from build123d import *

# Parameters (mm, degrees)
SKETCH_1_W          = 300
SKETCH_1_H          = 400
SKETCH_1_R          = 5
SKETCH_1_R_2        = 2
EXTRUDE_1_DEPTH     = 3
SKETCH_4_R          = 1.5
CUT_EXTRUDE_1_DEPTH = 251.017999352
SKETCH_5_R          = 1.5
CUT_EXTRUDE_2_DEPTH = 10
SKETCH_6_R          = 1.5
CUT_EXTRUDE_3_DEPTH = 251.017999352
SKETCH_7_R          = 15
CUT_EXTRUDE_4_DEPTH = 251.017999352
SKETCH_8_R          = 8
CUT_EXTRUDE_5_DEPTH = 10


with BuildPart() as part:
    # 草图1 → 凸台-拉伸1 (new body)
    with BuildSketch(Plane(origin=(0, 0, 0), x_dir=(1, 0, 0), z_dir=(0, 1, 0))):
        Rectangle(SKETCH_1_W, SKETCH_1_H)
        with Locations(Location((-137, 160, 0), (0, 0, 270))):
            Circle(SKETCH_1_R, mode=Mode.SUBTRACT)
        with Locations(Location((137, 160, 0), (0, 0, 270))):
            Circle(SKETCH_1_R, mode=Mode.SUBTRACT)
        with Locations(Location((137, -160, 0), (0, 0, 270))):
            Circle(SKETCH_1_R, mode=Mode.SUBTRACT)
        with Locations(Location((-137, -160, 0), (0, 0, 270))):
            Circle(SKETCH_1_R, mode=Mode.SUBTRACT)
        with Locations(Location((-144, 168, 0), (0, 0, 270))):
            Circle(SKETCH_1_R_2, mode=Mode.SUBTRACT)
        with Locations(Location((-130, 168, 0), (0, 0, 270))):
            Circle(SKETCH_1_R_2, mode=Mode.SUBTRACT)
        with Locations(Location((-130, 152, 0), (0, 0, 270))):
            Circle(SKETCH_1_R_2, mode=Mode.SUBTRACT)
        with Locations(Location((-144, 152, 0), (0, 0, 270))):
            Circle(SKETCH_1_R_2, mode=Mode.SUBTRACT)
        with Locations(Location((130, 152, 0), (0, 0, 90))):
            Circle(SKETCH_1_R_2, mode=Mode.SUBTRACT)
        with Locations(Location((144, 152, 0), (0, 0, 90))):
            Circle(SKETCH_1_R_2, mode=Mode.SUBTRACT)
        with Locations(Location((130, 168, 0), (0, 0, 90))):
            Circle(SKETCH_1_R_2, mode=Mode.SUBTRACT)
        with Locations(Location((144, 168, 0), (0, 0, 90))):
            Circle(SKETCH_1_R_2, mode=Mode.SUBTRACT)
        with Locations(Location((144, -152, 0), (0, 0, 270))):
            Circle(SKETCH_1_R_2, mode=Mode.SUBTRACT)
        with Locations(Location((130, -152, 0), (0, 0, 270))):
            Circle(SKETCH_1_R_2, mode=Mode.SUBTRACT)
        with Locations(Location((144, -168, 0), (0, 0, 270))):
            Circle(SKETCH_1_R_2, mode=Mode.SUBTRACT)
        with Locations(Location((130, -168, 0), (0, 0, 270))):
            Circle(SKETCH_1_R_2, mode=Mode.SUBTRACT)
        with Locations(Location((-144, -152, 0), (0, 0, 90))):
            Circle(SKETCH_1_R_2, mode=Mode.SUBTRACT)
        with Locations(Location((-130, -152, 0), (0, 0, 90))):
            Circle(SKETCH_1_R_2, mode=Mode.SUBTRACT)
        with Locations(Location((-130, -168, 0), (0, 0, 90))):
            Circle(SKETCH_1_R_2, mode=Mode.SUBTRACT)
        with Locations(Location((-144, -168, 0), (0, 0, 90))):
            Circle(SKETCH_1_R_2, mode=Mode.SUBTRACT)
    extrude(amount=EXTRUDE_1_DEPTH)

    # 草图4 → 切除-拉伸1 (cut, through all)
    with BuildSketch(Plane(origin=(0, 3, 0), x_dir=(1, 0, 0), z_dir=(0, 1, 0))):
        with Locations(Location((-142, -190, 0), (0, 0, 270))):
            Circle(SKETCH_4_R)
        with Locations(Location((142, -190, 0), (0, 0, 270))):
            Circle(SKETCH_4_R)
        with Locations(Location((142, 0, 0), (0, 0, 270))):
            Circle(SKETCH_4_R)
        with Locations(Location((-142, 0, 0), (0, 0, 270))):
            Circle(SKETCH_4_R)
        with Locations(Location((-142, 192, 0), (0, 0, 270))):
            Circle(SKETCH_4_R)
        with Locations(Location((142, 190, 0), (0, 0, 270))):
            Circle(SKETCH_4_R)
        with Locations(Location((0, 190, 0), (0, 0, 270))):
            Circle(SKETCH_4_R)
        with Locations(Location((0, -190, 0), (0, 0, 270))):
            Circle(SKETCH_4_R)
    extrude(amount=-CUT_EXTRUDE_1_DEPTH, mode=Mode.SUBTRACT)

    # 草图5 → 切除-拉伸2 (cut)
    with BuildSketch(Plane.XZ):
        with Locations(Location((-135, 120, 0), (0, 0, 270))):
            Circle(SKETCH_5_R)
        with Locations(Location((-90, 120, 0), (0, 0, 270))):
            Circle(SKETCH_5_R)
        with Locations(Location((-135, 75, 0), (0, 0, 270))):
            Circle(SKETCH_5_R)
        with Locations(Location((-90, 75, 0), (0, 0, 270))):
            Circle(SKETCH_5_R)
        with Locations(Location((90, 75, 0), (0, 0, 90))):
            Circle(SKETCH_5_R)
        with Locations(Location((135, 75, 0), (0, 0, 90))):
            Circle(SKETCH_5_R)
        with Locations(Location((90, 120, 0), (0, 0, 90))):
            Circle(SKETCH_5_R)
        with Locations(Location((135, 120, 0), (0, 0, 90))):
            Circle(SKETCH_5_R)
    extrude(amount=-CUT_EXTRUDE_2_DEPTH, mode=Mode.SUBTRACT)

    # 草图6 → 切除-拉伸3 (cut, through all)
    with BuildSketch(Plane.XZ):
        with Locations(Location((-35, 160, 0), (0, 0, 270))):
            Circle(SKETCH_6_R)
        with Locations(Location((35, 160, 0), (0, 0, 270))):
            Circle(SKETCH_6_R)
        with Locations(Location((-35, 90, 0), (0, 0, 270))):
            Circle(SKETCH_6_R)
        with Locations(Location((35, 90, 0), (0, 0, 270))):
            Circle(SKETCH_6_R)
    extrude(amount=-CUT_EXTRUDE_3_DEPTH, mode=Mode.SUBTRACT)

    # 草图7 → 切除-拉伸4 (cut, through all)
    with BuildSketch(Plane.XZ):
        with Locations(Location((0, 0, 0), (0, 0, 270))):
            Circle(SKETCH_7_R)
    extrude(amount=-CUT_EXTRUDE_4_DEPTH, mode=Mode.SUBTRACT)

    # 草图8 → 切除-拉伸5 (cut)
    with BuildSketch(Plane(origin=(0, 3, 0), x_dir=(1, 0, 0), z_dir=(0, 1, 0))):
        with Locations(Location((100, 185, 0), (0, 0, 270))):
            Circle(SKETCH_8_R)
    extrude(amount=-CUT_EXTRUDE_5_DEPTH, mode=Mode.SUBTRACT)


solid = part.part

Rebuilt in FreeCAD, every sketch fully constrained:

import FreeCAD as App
import Part
import Sketcher


def add_polygon(sketch, points):
    """Adds a closed chain of lines whose ends are joined by coincident constraints."""
    first, n = sketch.GeometryCount, len(points)
    for a, b in zip(points, points[1:] + points[:1]):
        sketch.addGeometry(Part.LineSegment(App.Vector(*a, 0), App.Vector(*b, 0)), False)
    for i in range(n):
        sketch.addConstraint(Sketcher.Constraint("Coincident", first + i, 2, first + (i + 1) % n, 1))

doc = App.newDocument("Part")
body = doc.addObject("PartDesign::Body", "Body")

# Sketch on XZ plane
sketch1 = body.newObject("Sketcher::SketchObject", "Sketch")
sketch1.AttachmentSupport = (doc.getObject("XZ_Plane"), [""])
sketch1.MapMode = "FlatFace"
add_polygon(sketch1, [(-150, -200), (-150, 200), (150, 200), (150, -200)])  # lines 0-3
sketch1.addGeometry(Part.Circle(App.Vector(-144, 168, 0), App.Vector(0, 0, 1), 2), False)  # 4
sketch1.addGeometry(Part.Circle(App.Vector(-137, 160, 0), App.Vector(0, 0, 1), 5), False)  # 5
sketch1.addGeometry(Part.Circle(App.Vector(-130, 168, 0), App.Vector(0, 0, 1), 2), False)  # 6
sketch1.addGeometry(Part.Circle(App.Vector(-144, 152, 0), App.Vector(0, 0, 1), 2), False)  # 7
sketch1.addGeometry(Part.Circle(App.Vector(-130, 152, 0), App.Vector(0, 0, 1), 2), False)  # 8
sketch1.addGeometry(Part.Circle(App.Vector(130, 168, 0), App.Vector(0, 0, 1), 2), False)  # 9
sketch1.addGeometry(Part.Circle(App.Vector(144, 168, 0), App.Vector(0, 0, 1), 2), False)  # 10
sketch1.addGeometry(Part.Circle(App.Vector(137, 160, 0), App.Vector(0, 0, 1), 5), False)  # 11
sketch1.addGeometry(Part.Circle(App.Vector(130, 152, 0), App.Vector(0, 0, 1), 2), False)  # 12
sketch1.addGeometry(Part.Circle(App.Vector(144, 152, 0), App.Vector(0, 0, 1), 2), False)  # 13
sketch1.addGeometry(Part.Circle(App.Vector(-144, -152, 0), App.Vector(0, 0, 1), 2), False)  # 14
sketch1.addGeometry(Part.Circle(App.Vector(-130, -152, 0), App.Vector(0, 0, 1), 2), False)  # 15
sketch1.addGeometry(Part.Circle(App.Vector(-137, -160, 0), App.Vector(0, 0, 1), 5), False)  # 16
sketch1.addGeometry(Part.Circle(App.Vector(-144, -168, 0), App.Vector(0, 0, 1), 2), False)  # 17
sketch1.addGeometry(Part.Circle(App.Vector(-130, -168, 0), App.Vector(0, 0, 1), 2), False)  # 18
sketch1.addGeometry(Part.Circle(App.Vector(130, -152, 0), App.Vector(0, 0, 1), 2), False)  # 19
sketch1.addGeometry(Part.Circle(App.Vector(144, -152, 0), App.Vector(0, 0, 1), 2), False)  # 20
sketch1.addGeometry(Part.Circle(App.Vector(130, -168, 0), App.Vector(0, 0, 1), 2), False)  # 21
sketch1.addGeometry(Part.Circle(App.Vector(137, -160, 0), App.Vector(0, 0, 1), 5), False)  # 22
sketch1.addGeometry(Part.Circle(App.Vector(144, -168, 0), App.Vector(0, 0, 1), 2), False)  # 23
sketch1.addConstraint([
    Sketcher.Constraint("Vertical", 0),
    Sketcher.Constraint("Horizontal", 1),
    Sketcher.Constraint("Vertical", 2),
    Sketcher.Constraint("Horizontal", 3),
    Sketcher.Constraint("Equal", 4, 6),
    Sketcher.Constraint("Equal", 6, 7),
    Sketcher.Constraint("Equal", 7, 8),
    Sketcher.Constraint("Equal", 8, 9),
    Sketcher.Constraint("Equal", 9, 10),
    Sketcher.Constraint("Equal", 5, 11),
    Sketcher.Constraint("Equal", 10, 12),
    Sketcher.Constraint("Equal", 12, 13),
    Sketcher.Constraint("Equal", 13, 14),
    Sketcher.Constraint("Equal", 14, 15),
    Sketcher.Constraint("Equal", 11, 16),
    Sketcher.Constraint("Equal", 15, 17),
    Sketcher.Constraint("Equal", 17, 18),
    Sketcher.Constraint("Equal", 18, 19),
    Sketcher.Constraint("Equal", 19, 20),
    Sketcher.Constraint("Equal", 20, 21),
    Sketcher.Constraint("Equal", 16, 22),
    Sketcher.Constraint("Equal", 21, 23),
    Sketcher.Constraint("Symmetric", 13, 3, 14, 3, -1, 1),
    Sketcher.Constraint("Symmetric", 12, 3, 15, 3, -1, 1),
    Sketcher.Constraint("Symmetric", 11, 3, 16, 3, -1, 1),
    Sketcher.Constraint("Symmetric", 10, 3, 17, 3, -1, 1),
    Sketcher.Constraint("Symmetric", 9, 3, 18, 3, -1, 1),
    Sketcher.Constraint("Symmetric", 8, 3, 19, 3, -1, 1),
    Sketcher.Constraint("Symmetric", 7, 3, 20, 3, -1, 1),
    Sketcher.Constraint("Symmetric", 6, 3, 21, 3, -1, 1),
    Sketcher.Constraint("Symmetric", 5, 3, 22, 3, -1, 1),
    Sketcher.Constraint("Symmetric", 4, 3, 23, 3, -1, 1),
    Sketcher.Constraint("Symmetric", 0, 2, 2, 2, -1, 1),
    Sketcher.Constraint("Symmetric", 6, 3, 9, 3, -2),
    Sketcher.Constraint("Symmetric", 4, 3, 10, 3, -2),
    Sketcher.Constraint("Symmetric", 5, 3, 11, 3, -2),
    Sketcher.Constraint("Symmetric", 8, 3, 12, 3, -2),
    Sketcher.Constraint("Symmetric", 7, 3, 13, 3, -2),
    Sketcher.Constraint("Horizontal", 4, 3, 6, 3),
    Sketcher.Constraint("Horizontal", 7, 3, 8, 3),
    Sketcher.Constraint("Vertical", 4, 3, 7, 3),
    Sketcher.Constraint("Vertical", 6, 3, 8, 3),
    Sketcher.Constraint("Diameter", 4, 4.0),
    Sketcher.Constraint("Diameter", 5, 10.0),
    Sketcher.Constraint("DistanceX", 1, 1, 1, 2, 300.0),
    Sketcher.Constraint("DistanceY", 0, 1, 0, 2, 400.0),
    Sketcher.Constraint("DistanceX", 4, 3, -1, 1, 144.0),
    Sketcher.Constraint("DistanceY", -1, 1, 4, 3, 168.0),
    Sketcher.Constraint("DistanceX", 5, 3, -1, 1, 137.0),
    Sketcher.Constraint("DistanceY", -1, 1, 5, 3, 160.0),
    Sketcher.Constraint("DistanceX", 6, 3, -1, 1, 130.0),
    Sketcher.Constraint("DistanceY", -1, 1, 7, 3, 152.0),
])
pad1 = body.newObject("PartDesign::Pad", "Pad")
pad1.Profile = sketch1
pad1.Length = 3
pad1.Reversed = True

# Sketch on XZ plane
sketch2 = body.newObject("Sketcher::SketchObject", "Sketch001")
sketch2.AttachmentSupport = (doc.getObject("XZ_Plane"), [""])
sketch2.MapMode = "FlatFace"
sketch2.AttachmentOffset = App.Placement(App.Vector(0, 0, -3), App.Rotation())
sketch2.addGeometry([
    Part.Circle(App.Vector(-142, 190, 0), App.Vector(0, 0, 1), 1.5),  # 0
    Part.Circle(App.Vector(142, 190, 0), App.Vector(0, 0, 1), 1.5),  # 1
    Part.Circle(App.Vector(142, 0, 0), App.Vector(0, 0, 1), 1.5),  # 2
    Part.Circle(App.Vector(-142, 0, 0), App.Vector(0, 0, 1), 1.5),  # 3
    Part.Circle(App.Vector(-142, -192, 0), App.Vector(0, 0, 1), 1.5),  # 4
    Part.Circle(App.Vector(142, -190, 0), App.Vector(0, 0, 1), 1.5),  # 5
    Part.Circle(App.Vector(0, -190, 0), App.Vector(0, 0, 1), 1.5),  # 6
    Part.Circle(App.Vector(0, 190, 0), App.Vector(0, 0, 1), 1.5),  # 7
], False)
sketch2.addConstraint([
    Sketcher.Constraint("Equal", 0, 1),
    Sketcher.Constraint("Equal", 1, 2),
    Sketcher.Constraint("Equal", 2, 3),
    Sketcher.Constraint("Equal", 3, 4),
    Sketcher.Constraint("Equal", 4, 5),
    Sketcher.Constraint("Equal", 5, 6),
    Sketcher.Constraint("Equal", 6, 7),
    Sketcher.Constraint("Symmetric", 2, 3, 3, 3, -1, 1),
    Sketcher.Constraint("Symmetric", 0, 3, 5, 3, -1, 1),
    Sketcher.Constraint("Symmetric", 6, 3, 7, 3, -1, 1),
    Sketcher.Constraint("Symmetric", 0, 3, 1, 3, -2),
    Sketcher.Constraint("PointOnObject", 2, 3, -1),
    Sketcher.Constraint("PointOnObject", 6, 3, -2),
    Sketcher.Constraint("Horizontal", 5, 3, 6, 3),
    Sketcher.Constraint("Vertical", 1, 3, 2, 3),
    Sketcher.Constraint("Vertical", 3, 3, 4, 3),
    Sketcher.Constraint("Diameter", 0, 3.0),
    Sketcher.Constraint("DistanceX", 0, 3, -1, 1, 142.0),
    Sketcher.Constraint("DistanceY", -1, 1, 0, 3, 190.0),
    Sketcher.Constraint("DistanceY", 4, 3, -1, 1, 192.0),
])
pocket1 = body.newObject("PartDesign::Pocket", "Pocket")
pocket1.Profile = sketch2
pocket1.Type = "ThroughAll"
pocket1.Reversed = True

# Sketch on XZ plane
sketch3 = body.newObject("Sketcher::SketchObject", "Sketch002")
sketch3.AttachmentSupport = (doc.getObject("XZ_Plane"), [""])
sketch3.MapMode = "FlatFace"
sketch3.addGeometry([
    Part.Circle(App.Vector(-135, 120, 0), App.Vector(0, 0, 1), 1.5),  # 0
    Part.Circle(App.Vector(-90, 120, 0), App.Vector(0, 0, 1), 1.5),  # 1
    Part.Circle(App.Vector(-135, 75, 0), App.Vector(0, 0, 1), 1.5),  # 2
    Part.Circle(App.Vector(-90, 75, 0), App.Vector(0, 0, 1), 1.5),  # 3
    Part.Circle(App.Vector(90, 75, 0), App.Vector(0, 0, 1), 1.5),  # 4
    Part.Circle(App.Vector(135, 75, 0), App.Vector(0, 0, 1), 1.5),  # 5
    Part.Circle(App.Vector(90, 120, 0), App.Vector(0, 0, 1), 1.5),  # 6
    Part.Circle(App.Vector(135, 120, 0), App.Vector(0, 0, 1), 1.5),  # 7
], False)
sketch3.addConstraint([
    Sketcher.Constraint("Equal", 0, 1),
    Sketcher.Constraint("Equal", 1, 2),
    Sketcher.Constraint("Equal", 2, 3),
    Sketcher.Constraint("Equal", 3, 4),
    Sketcher.Constraint("Equal", 4, 5),
    Sketcher.Constraint("Equal", 5, 6),
    Sketcher.Constraint("Equal", 6, 7),
    Sketcher.Constraint("Symmetric", 3, 3, 4, 3, -2),
    Sketcher.Constraint("Symmetric", 2, 3, 5, 3, -2),
    Sketcher.Constraint("Symmetric", 1, 3, 6, 3, -2),
    Sketcher.Constraint("Symmetric", 0, 3, 7, 3, -2),
    Sketcher.Constraint("Horizontal", 0, 3, 1, 3),
    Sketcher.Constraint("Horizontal", 2, 3, 3, 3),
    Sketcher.Constraint("Vertical", 0, 3, 2, 3),
    Sketcher.Constraint("Vertical", 1, 3, 3, 3),
    Sketcher.Constraint("Diameter", 0, 3.0),
    Sketcher.Constraint("DistanceX", 0, 3, -1, 1, 135.0),
    Sketcher.Constraint("DistanceY", -1, 1, 0, 3, 120.0),
    Sketcher.Constraint("DistanceX", 1, 3, -1, 1, 90.0),
    Sketcher.Constraint("DistanceY", -1, 1, 2, 3, 75.0),
])
pocket2 = body.newObject("PartDesign::Pocket", "Pocket001")
pocket2.Profile = sketch3
pocket2.Length = 10

# Sketch on XZ plane
sketch4 = body.newObject("Sketcher::SketchObject", "Sketch003")
sketch4.AttachmentSupport = (doc.getObject("XZ_Plane"), [""])
sketch4.MapMode = "FlatFace"
sketch4.addGeometry([
    Part.Circle(App.Vector(-35, 160, 0), App.Vector(0, 0, 1), 1.5),
    Part.Circle(App.Vector(35, 160, 0), App.Vector(0, 0, 1), 1.5),
    Part.Circle(App.Vector(-35, 90, 0), App.Vector(0, 0, 1), 1.5),
    Part.Circle(App.Vector(35, 90, 0), App.Vector(0, 0, 1), 1.5),
], False)
sketch4.addConstraint([
    Sketcher.Constraint("Equal", 0, 1),
    Sketcher.Constraint("Equal", 1, 2),
    Sketcher.Constraint("Equal", 2, 3),
    Sketcher.Constraint("Symmetric", 0, 3, 1, 3, -2),
    Sketcher.Constraint("Symmetric", 2, 3, 3, 3, -2),
    Sketcher.Constraint("Vertical", 0, 3, 2, 3),
    Sketcher.Constraint("Diameter", 0, 3.0),
    Sketcher.Constraint("DistanceX", 0, 3, -1, 1, 35.0),
    Sketcher.Constraint("DistanceY", -1, 1, 0, 3, 160.0),
    Sketcher.Constraint("DistanceY", -1, 1, 2, 3, 90.0),
])
pocket3 = body.newObject("PartDesign::Pocket", "Pocket002")
pocket3.Profile = sketch4
pocket3.Type = "ThroughAll"

# Sketch on XZ plane
sketch5 = body.newObject("Sketcher::SketchObject", "Sketch004")
sketch5.AttachmentSupport = (doc.getObject("XZ_Plane"), [""])
sketch5.MapMode = "FlatFace"
sketch5.addGeometry(Part.Circle(App.Vector(0, 0, 0), App.Vector(0, 0, 1), 15), False)
sketch5.addConstraint([
    Sketcher.Constraint("Coincident", 0, 3, -1, 1),
    Sketcher.Constraint("Diameter", 0, 30.0),
])
pocket4 = body.newObject("PartDesign::Pocket", "Pocket003")
pocket4.Profile = sketch5
pocket4.Type = "ThroughAll"

# Sketch on XZ plane
sketch6 = body.newObject("Sketcher::SketchObject", "Sketch005")
sketch6.AttachmentSupport = (doc.getObject("XZ_Plane"), [""])
sketch6.MapMode = "FlatFace"
sketch6.AttachmentOffset = App.Placement(App.Vector(0, 0, -3), App.Rotation())
sketch6.addGeometry(Part.Circle(App.Vector(100, -185, 0), App.Vector(0, 0, 1), 8), False)
sketch6.addConstraint([
    Sketcher.Constraint("Diameter", 0, 16.0),
    Sketcher.Constraint("DistanceX", -1, 1, 0, 3, 100.0),
    Sketcher.Constraint("DistanceY", 0, 3, -1, 1, 185.0),
])
pocket5 = body.newObject("PartDesign::Pocket", "Pocket004")
pocket5.Profile = sketch6
pocket5.Length = 10
pocket5.Reversed = True

doc.recompute()
